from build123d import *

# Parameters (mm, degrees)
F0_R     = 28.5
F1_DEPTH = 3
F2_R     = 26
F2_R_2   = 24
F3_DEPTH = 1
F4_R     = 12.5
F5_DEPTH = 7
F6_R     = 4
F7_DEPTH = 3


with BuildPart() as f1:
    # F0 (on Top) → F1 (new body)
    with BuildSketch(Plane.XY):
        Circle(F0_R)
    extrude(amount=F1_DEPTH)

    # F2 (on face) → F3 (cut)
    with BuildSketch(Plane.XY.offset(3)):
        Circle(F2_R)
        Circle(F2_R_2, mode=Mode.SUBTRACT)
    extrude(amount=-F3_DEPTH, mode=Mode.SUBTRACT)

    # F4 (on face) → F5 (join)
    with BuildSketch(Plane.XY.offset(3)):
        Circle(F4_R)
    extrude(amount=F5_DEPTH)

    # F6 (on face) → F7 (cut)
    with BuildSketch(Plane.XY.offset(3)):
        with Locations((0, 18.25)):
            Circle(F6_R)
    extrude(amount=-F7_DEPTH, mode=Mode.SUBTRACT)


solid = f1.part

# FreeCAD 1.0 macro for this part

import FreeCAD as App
import Part
import Sketcher
from FreeCAD import Vector

doc = App.newDocument("Part")
body = doc.addObject("PartDesign::Body", "Body")

# Sketch on XY plane
sketch1 = body.newObject("Sketcher::SketchObject", "Sketch")
sketch1.AttachmentSupport = (doc.getObject("XY_Plane"), [""])
sketch1.MapMode = "FlatFace"
sketch1.addGeometry(Part.Circle(Vector(0, 0, 0), Vector(0, 0, 1), 28), False)
sketch1.addConstraint(Sketcher.Constraint("Coincident", 0, 3, -1, 1))
sketch1.addConstraint(Sketcher.Constraint("Diameter", 0, 57.0))
pad1 = body.newObject("PartDesign::Pad", "Pad")
pad1.Profile = sketch1
pad1.Length = 3

# Sketch on XY plane
sketch2 = body.newObject("Sketcher::SketchObject", "Sketch001")
sketch2.AttachmentSupport = (doc.getObject("XY_Plane"), [""])
sketch2.MapMode = "FlatFace"
sketch2.AttachmentOffset = App.Placement(Vector(0, 0, 3), App.Rotation())
sketch2.addGeometry(Part.Circle(Vector(0, 0, 0), Vector(0, 0, 1), 26), False)
sketch2.addGeometry(Part.Circle(Vector(0, 0, 0), Vector(0, 0, 1), 24), False)
sketch2.addConstraint(Sketcher.Constraint("Coincident", 0, 3, -1, 1))
sketch2.addConstraint(Sketcher.Constraint("Coincident", 1, 3, -1, 1))
sketch2.addConstraint(Sketcher.Constraint("Diameter", 0, 52.0))
sketch2.addConstraint(Sketcher.Constraint("Diameter", 1, 48.0))
pocket1 = body.newObject("PartDesign::Pocket", "Pocket")
pocket1.Profile = sketch2
pocket1.Length = 1

# Sketch on XY plane
sketch3 = body.newObject("Sketcher::SketchObject", "Sketch002")
sketch3.AttachmentSupport = (doc.getObject("XY_Plane"), [""])
sketch3.MapMode = "FlatFace"
sketch3.AttachmentOffset = App.Placement(Vector(0, 0, 3), App.Rotation())
sketch3.addGeometry(Part.Circle(Vector(0, 0, 0), Vector(0, 0, 1), 12), False)
sketch3.addConstraint(Sketcher.Constraint("Coincident", 0, 3, -1, 1))
sketch3.addConstraint(Sketcher.Constraint("Diameter", 0, 25.0))
pad2 = body.newObject("PartDesign::Pad", "Pad001")
pad2.Profile = sketch3
pad2.Length = 7

# Sketch on XY plane
sketch4 = body.newObject("Sketcher::SketchObject", "Sketch003")
sketch4.AttachmentSupport = (doc.getObject("XY_Plane"), [""])
sketch4.MapMode = "FlatFace"
sketch4.AttachmentOffset = App.Placement(Vector(0, 0, 3), App.Rotation())
sketch4.addGeometry(Part.Circle(Vector(0, 18.2, 0), Vector(0, 0, 1), 4), False)
sketch4.addConstraint(Sketcher.Constraint("PointOnObject", 0, 3, -2))
sketch4.addConstraint(Sketcher.Constraint("Diameter", 0, 8.0))
sketch4.addConstraint(Sketcher.Constraint("DistanceY", -1, 1, 0, 3, 18.25))
pocket2 = body.newObject("PartDesign::Pocket", "Pocket001")
pocket2.Profile = sketch4
pocket2.Length = 3

doc.recompute()
